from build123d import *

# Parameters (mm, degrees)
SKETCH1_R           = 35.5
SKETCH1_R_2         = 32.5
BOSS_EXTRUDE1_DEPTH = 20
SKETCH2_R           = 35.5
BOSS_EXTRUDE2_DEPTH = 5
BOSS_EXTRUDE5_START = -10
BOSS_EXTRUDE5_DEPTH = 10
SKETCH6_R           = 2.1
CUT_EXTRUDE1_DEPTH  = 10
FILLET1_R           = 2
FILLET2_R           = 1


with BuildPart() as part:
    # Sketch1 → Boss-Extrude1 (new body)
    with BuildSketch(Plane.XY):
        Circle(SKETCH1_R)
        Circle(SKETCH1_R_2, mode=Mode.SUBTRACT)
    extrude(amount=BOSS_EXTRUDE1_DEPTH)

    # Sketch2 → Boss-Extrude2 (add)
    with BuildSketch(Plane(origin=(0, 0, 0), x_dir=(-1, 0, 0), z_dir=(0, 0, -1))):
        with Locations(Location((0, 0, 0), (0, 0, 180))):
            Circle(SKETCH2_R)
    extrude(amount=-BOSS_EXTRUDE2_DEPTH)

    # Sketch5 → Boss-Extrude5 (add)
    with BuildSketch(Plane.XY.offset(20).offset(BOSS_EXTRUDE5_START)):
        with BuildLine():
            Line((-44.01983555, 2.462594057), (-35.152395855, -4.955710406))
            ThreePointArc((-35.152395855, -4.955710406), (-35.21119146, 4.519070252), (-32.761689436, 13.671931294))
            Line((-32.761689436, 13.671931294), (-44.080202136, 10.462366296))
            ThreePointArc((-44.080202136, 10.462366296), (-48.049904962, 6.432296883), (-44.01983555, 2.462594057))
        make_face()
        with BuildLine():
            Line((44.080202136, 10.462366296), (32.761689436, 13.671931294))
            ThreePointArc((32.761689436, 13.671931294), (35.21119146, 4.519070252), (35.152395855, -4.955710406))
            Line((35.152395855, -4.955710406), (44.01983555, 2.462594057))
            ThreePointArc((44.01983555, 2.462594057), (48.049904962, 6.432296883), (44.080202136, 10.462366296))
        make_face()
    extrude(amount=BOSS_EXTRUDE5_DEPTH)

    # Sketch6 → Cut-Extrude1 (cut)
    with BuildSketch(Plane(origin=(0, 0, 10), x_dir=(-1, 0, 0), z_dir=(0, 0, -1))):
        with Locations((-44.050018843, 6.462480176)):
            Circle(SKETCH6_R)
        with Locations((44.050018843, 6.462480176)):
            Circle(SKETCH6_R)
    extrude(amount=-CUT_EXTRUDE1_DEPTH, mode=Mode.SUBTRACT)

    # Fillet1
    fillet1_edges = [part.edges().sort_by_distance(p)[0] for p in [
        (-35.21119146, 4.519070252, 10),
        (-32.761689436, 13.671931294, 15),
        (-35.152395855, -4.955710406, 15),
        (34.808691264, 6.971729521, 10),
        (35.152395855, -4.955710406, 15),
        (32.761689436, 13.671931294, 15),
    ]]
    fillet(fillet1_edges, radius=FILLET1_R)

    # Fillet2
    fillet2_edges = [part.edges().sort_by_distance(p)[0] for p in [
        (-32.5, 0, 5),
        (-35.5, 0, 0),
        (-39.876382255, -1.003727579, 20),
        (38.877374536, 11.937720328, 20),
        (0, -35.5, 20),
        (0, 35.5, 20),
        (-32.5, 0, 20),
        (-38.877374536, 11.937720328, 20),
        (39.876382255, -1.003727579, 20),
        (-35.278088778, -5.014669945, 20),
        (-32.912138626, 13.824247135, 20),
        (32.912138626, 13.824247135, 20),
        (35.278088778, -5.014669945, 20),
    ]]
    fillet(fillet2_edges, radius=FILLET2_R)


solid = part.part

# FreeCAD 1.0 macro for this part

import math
import FreeCAD as App
import Part
import Sketcher
from FreeCAD import Vector


def edges_at(feature, points):
    """Names of the edges that pass closest to the given points."""
    edges = feature.Shape.Edges
    near = lambda p: min(range(len(edges)), key=lambda i: edges[i].distToShape(Part.Vertex(*p))[0])
    return sorted({f"Edge{near(p) + 1}" for p in points})

doc = App.newDocument("Part")
body = doc.addObject("PartDesign::Body", "Body")

sketch1 = body.newObject("Sketcher::SketchObject", "Sketch")
sketch1.AttachmentSupport = (doc.getObject("XY_Plane"), [""])
sketch1.MapMode = "FlatFace"
sketch1.addGeometry([
    Part.Circle(Vector(0, 0, 0), Vector(0, 0, 1), 36),
    Part.Circle(Vector(0, 0, 0), Vector(0, 0, 1), 32),
], False)
sketch1.addConstraint([
    Sketcher.Constraint("Coincident", 0, 3, -1, 1),
    Sketcher.Constraint("Coincident", 1, 3, -1, 1),
    Sketcher.Constraint("Diameter", 0, 71.0),
    Sketcher.Constraint("Diameter", 1, 65.0),
])
pad1 = body.newObject("PartDesign::Pad", "Pad")
pad1.Profile = sketch1
pad1.Length = 20

sketch2 = body.newObject("Sketcher::SketchObject", "Sketch001")
sketch2.AttachmentSupport = (doc.getObject("XY_Plane"), [""])
sketch2.MapMode = "FlatFace"
sketch2.addGeometry(Part.Circle(Vector(0, 0, 0), Vector(0, 0, 1), 36), False)
sketch2.addConstraint([
    Sketcher.Constraint("Coincident", 0, 3, -1, 1),
    Sketcher.Constraint("Diameter", 0, 71.0),
])
pad2 = body.newObject("PartDesign::Pad", "Pad001")
pad2.Profile = sketch2
pad2.Length = 5

sketch3 = body.newObject("Sketcher::SketchObject", "Sketch002")
sketch3.AttachmentSupport = (doc.getObject("XY_Plane"), [""])
sketch3.MapMode = "FlatFace"
sketch3.AttachmentOffset = App.Placement(Vector(0, 0, 10), App.Rotation())
sketch3.addGeometry([
    Part.LineSegment(Vector(-44.019836, 2.462594, 0), Vector(-35.152396, -4.95571, 0)),
    Part.ArcOfCircle(Part.Circle(Vector(0, 0, 0), Vector(0, 0, 1), 35.5), math.radians(157.34851), math.radians(188.024555)),
    Part.LineSegment(Vector(-32.761689, 13.671931, 0), Vector(-44.080202, 10.462366, 0)),
    Part.ArcOfCircle(Part.Circle(Vector(-44.050019, 6.46248, 0), Vector(0, 0, 1), 4), math.radians(90.432348), math.radians(270.432348)),
    Part.LineSegment(Vector(44.080202, 10.462366, 0), Vector(32.761689, 13.671931, 0)),
    Part.ArcOfCircle(Part.Circle(Vector(0, 0, 0), Vector(0, 0, 1), 35.5), math.radians(-8.024555), math.radians(22.65149)),
    Part.LineSegment(Vector(35.152396, -4.95571, 0), Vector(44.019836, 2.462594, 0)),
    Part.ArcOfCircle(Part.Circle(Vector(44.050019, 6.46248, 0), Vector(0, 0, 1), 4), math.radians(-90.432348), math.radians(89.567652)),
], False)
sketch3.addConstraint([
    Sketcher.Constraint("Coincident", 0, 2, 1, 2),
    Sketcher.Constraint("Coincident", 1, 1, 2, 1),
    Sketcher.Constraint("Coincident", 2, 2, 3, 1),
    Sketcher.Constraint("Coincident", 3, 2, 0, 1),
    Sketcher.Constraint("Coincident", 4, 2, 5, 2),
    Sketcher.Constraint("Coincident", 5, 1, 6, 1),
    Sketcher.Constraint("Coincident", 6, 2, 7, 1),
    Sketcher.Constraint("Coincident", 7, 2, 4, 1),
    Sketcher.Constraint("Coincident", 1, 3, -1, 1),
    Sketcher.Constraint("Coincident", 5, 3, -1, 1),
    Sketcher.Constraint("Equal", 1, 5),
    Sketcher.Constraint("Equal", 3, 7),
    Sketcher.Constraint("Symmetric", 3, 3, 7, 3, -2),
    Sketcher.Constraint("Horizontal", 1, 1, 4, 2),
    Sketcher.Constraint("Horizontal", 0, 2, 5, 1),
    Sketcher.Constraint("Horizontal", 3, 2, 6, 2),
    Sketcher.Constraint("Horizontal", 2, 2, 7, 2),
    Sketcher.Constraint("Radius", 3, 4.0),
    Sketcher.Constraint("Radius", 1, 35.5),
    Sketcher.Constraint("Distance", 0, 11.56126),
    Sketcher.Constraint("Distance", 2, 11.76478),
    Sketcher.Constraint("DistanceX", 3, 3, -1, 1, 44.050019),
    Sketcher.Constraint("DistanceY", -1, 1, 3, 3, 6.46248),
    Sketcher.Constraint("DistanceY", 0, 2, -1, 1, 4.95571),
    Sketcher.Constraint("DistanceX", 1, 1, -1, 1, 32.761689),
])
pad3 = body.newObject("PartDesign::Pad", "Pad002")
pad3.Profile = sketch3
pad3.Length = 10

sketch4 = body.newObject("Sketcher::SketchObject", "Sketch003")
sketch4.AttachmentSupport = (doc.getObject("XY_Plane"), [""])
sketch4.MapMode = "FlatFace"
sketch4.AttachmentOffset = App.Placement(Vector(0, 0, 10), App.Rotation())
sketch4.addGeometry([
    Part.Circle(Vector(44.1, 6.5, 0), Vector(0, 0, 1), 2.1),
    Part.Circle(Vector(-44.1, 6.5, 0), Vector(0, 0, 1), 2.1),
], False)
sketch4.addConstraint([
    Sketcher.Constraint("Equal", 0, 1),
    Sketcher.Constraint("Symmetric", 0, 3, 1, 3, -2),
    Sketcher.Constraint("Diameter", 0, 4.2),
    Sketcher.Constraint("DistanceX", -1, 1, 0, 3, 44.050019),
    Sketcher.Constraint("DistanceY", -1, 1, 0, 3, 6.46248),
])
pocket1 = body.newObject("PartDesign::Pocket", "Pocket")
pocket1.Profile = sketch4
pocket1.Length = 10
pocket1.Reversed = True
doc.recompute()

fillet = body.newObject("PartDesign::Fillet", "Fillet")
fillet.Base = (pocket1, edges_at(pocket1, [
    (-35.211, 4.519, 10),
    (-32.762, 13.672, 15),
    (-35.152, -4.956, 15),
    (34.809, 6.972, 10),
    (35.152, -4.956, 15),
    (32.762, 13.672, 15),
]))
fillet.Radius = 2
doc.recompute()

fillet2 = body.newObject("PartDesign::Fillet", "Fillet001")
fillet2.Base = (fillet, edges_at(fillet, [
    (-32.5, 0, 5),
    (-35.5, 0, 0),
    (-39.876, -1.004, 20),
    (38.877, 11.938, 20),
    (0, -35.5, 20),
    (0, 35.5, 20),
    (-32.5, 0, 20),
    (-38.877, 11.938, 20),
    (39.876, -1.004, 20),
    (-35.278, -5.015, 20),
    (-32.912, 13.824, 20),
    (32.912, 13.824, 20),
    (35.278, -5.015, 20),
]))
fillet2.Radius = 1

doc.recompute()
